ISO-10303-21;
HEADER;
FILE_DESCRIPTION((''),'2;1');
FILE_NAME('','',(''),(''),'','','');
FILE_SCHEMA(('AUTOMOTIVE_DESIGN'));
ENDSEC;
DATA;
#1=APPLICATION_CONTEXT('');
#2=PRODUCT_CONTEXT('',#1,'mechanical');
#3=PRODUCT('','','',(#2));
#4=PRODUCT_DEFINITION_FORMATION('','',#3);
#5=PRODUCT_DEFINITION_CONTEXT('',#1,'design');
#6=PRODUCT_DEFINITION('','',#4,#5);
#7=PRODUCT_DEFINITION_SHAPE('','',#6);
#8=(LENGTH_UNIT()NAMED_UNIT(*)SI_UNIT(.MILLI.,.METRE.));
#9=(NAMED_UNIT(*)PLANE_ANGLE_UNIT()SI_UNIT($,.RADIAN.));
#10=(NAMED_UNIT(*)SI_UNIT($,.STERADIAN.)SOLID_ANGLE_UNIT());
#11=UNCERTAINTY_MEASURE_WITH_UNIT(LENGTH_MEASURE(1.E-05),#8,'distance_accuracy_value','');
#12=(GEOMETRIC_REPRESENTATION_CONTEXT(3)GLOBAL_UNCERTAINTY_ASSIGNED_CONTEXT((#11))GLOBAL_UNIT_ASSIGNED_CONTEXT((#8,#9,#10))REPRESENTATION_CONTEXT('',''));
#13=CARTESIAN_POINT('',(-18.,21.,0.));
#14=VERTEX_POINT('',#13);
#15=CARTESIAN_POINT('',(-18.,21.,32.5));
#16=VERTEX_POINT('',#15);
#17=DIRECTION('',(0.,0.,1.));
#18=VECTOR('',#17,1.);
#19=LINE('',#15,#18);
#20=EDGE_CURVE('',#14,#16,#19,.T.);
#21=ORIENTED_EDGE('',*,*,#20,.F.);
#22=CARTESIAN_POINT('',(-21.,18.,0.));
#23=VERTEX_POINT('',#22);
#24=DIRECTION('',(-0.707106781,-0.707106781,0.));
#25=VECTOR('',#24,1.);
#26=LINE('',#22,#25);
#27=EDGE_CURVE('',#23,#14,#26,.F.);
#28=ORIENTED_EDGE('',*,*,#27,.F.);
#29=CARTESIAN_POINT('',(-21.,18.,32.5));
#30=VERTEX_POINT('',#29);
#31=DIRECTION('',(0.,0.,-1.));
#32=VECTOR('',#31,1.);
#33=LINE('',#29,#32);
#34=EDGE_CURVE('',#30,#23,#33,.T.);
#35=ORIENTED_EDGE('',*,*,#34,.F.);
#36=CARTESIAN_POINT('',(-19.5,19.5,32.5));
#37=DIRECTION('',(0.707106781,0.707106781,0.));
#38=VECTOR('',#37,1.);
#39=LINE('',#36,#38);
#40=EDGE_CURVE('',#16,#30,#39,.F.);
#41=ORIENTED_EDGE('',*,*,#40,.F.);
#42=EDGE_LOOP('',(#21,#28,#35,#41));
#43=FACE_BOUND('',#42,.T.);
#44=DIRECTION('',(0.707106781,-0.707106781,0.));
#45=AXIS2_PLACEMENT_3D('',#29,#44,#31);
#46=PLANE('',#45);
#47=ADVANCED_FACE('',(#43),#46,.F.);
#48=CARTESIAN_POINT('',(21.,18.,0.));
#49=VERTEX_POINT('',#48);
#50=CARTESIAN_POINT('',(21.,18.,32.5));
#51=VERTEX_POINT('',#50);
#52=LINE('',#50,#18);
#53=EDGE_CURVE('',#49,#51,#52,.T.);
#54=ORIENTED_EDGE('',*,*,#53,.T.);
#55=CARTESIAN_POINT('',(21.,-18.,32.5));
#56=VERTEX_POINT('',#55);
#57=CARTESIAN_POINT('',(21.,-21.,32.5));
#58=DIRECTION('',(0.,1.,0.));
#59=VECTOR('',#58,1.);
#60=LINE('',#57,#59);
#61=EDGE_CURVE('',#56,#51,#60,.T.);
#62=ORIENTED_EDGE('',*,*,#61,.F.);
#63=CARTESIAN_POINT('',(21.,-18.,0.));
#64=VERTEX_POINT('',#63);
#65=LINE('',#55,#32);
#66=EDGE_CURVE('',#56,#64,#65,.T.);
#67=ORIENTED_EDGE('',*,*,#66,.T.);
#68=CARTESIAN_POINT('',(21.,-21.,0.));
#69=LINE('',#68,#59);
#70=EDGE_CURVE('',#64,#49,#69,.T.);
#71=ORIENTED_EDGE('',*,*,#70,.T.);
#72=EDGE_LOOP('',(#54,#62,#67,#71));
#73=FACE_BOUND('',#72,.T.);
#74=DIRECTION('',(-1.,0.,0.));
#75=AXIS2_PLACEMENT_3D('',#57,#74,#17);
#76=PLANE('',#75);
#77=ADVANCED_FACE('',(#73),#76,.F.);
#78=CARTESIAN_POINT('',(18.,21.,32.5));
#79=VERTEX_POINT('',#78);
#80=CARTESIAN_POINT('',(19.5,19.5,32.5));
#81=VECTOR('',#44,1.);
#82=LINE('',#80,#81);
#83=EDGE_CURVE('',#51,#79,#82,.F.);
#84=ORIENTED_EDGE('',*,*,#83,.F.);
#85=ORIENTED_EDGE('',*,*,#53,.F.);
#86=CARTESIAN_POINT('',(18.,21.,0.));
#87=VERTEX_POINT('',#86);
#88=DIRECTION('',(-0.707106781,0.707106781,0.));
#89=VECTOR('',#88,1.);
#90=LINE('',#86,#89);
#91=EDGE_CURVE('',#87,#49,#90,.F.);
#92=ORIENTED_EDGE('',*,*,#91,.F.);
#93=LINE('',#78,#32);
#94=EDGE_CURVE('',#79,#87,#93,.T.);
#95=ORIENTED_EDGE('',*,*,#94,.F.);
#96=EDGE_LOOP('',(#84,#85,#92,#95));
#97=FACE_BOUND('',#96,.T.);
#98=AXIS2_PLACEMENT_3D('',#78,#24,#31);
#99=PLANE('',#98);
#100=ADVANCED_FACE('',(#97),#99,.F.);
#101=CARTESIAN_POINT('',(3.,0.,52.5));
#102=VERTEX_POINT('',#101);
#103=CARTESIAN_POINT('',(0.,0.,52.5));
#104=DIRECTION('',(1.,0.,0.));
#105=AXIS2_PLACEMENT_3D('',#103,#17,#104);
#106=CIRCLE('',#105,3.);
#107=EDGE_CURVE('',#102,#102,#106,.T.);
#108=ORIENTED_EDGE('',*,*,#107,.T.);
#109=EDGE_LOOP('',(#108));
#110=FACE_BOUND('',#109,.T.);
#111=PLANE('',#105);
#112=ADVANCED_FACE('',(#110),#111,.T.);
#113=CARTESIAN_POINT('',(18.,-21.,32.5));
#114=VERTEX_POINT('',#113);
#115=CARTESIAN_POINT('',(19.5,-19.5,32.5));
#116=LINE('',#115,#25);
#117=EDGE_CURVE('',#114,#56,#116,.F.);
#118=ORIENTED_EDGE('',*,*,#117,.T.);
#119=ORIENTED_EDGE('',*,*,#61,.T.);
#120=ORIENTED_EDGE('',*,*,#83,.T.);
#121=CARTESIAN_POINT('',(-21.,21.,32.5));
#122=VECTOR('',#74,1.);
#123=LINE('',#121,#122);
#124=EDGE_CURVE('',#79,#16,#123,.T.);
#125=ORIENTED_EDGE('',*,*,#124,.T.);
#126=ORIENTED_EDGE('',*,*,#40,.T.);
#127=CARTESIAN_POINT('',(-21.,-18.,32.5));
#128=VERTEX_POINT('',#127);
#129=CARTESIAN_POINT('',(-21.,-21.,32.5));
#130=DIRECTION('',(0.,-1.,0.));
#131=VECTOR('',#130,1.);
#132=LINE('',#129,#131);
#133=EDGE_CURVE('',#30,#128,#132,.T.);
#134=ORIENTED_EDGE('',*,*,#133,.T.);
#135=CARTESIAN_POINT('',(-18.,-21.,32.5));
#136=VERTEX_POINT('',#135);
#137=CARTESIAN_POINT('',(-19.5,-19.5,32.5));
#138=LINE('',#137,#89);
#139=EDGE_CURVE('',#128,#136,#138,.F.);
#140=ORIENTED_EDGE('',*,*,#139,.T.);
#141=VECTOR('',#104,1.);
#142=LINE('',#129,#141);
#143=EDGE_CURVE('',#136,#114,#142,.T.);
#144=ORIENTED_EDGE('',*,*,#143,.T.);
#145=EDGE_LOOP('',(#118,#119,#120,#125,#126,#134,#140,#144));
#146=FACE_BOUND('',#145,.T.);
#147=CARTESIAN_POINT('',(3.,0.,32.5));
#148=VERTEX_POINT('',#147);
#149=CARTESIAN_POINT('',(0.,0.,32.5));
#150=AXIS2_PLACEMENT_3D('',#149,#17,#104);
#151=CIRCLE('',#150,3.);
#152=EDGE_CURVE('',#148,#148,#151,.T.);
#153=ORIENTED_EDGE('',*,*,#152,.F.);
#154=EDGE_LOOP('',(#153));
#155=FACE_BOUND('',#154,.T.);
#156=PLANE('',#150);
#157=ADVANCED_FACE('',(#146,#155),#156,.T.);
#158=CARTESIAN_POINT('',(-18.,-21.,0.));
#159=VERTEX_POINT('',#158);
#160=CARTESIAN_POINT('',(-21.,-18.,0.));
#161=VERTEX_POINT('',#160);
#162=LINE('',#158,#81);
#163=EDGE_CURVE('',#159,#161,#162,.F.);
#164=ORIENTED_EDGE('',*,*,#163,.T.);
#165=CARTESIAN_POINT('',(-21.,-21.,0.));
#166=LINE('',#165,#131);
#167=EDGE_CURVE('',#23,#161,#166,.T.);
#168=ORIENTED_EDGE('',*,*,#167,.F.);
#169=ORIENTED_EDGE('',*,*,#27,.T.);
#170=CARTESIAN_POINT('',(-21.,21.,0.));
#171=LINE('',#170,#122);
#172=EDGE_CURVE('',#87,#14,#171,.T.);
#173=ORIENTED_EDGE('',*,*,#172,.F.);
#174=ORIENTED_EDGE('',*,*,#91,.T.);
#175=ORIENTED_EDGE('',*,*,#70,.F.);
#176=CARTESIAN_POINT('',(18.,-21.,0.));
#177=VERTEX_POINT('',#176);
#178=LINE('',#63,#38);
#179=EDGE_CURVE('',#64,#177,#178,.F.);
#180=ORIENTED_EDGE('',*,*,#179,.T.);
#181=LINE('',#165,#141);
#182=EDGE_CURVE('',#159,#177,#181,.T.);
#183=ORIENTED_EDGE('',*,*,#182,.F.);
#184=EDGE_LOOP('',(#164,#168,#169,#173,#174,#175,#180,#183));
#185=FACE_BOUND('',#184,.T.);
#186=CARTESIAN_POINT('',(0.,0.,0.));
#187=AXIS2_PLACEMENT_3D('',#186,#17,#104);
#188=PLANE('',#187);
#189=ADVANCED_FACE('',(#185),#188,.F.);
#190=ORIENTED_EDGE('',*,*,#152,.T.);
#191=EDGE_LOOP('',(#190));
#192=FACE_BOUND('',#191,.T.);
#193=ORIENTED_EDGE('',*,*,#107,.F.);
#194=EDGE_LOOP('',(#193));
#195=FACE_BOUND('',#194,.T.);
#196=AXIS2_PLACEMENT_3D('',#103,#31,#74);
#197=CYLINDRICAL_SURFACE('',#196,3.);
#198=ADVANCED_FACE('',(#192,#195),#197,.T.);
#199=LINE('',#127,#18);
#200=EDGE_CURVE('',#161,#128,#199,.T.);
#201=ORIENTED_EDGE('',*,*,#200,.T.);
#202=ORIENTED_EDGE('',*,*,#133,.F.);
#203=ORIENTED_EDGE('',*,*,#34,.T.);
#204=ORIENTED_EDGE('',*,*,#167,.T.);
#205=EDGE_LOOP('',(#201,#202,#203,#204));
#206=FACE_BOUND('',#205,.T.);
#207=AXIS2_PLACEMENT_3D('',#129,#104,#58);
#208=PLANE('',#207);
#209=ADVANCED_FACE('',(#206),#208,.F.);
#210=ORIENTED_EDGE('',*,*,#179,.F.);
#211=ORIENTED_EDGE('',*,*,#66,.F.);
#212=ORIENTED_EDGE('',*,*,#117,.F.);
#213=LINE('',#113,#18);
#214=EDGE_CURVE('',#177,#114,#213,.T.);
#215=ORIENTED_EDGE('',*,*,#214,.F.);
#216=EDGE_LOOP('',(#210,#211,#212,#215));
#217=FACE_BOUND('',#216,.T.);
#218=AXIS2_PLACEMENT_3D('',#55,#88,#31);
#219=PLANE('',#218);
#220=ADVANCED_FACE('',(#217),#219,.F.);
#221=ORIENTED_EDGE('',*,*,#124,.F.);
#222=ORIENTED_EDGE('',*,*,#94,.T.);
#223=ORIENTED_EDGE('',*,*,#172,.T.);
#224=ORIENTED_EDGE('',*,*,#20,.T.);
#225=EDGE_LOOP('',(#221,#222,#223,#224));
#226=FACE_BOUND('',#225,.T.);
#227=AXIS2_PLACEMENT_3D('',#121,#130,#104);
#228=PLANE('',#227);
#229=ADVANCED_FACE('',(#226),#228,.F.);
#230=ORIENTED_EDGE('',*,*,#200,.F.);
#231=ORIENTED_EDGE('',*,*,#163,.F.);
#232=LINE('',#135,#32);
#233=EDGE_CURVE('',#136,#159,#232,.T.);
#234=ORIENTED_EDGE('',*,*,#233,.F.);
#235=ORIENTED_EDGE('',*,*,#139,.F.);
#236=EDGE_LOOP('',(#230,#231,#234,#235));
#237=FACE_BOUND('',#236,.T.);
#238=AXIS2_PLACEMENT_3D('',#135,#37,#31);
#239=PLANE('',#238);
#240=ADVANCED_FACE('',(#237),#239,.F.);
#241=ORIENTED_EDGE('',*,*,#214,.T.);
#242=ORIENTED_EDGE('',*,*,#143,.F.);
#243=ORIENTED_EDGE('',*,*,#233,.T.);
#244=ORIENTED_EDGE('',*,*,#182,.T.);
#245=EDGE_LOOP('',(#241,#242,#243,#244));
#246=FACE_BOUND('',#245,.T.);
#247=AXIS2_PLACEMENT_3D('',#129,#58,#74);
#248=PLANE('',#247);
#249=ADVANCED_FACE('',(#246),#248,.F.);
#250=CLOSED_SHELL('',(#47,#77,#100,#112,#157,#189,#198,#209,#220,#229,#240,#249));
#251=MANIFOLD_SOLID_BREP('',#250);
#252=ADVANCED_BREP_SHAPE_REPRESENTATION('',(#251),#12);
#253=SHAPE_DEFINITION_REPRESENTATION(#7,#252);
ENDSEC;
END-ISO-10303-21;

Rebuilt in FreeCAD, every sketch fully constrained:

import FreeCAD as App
import Part
import Sketcher


def edges_at(feature, points):
    """Names of the edges that pass closest to the given points."""
    edges = feature.Shape.Edges
    near = lambda p: min(range(len(edges)), key=lambda i: edges[i].distToShape(Part.Vertex(*p))[0])
    return sorted({f"Edge{near(p) + 1}" for p in points})

doc = App.newDocument("Part")
body = doc.addObject("PartDesign::Body", "Body")

# Sketch on XY plane
sketch1 = doc.addObject("Sketcher::SketchObject", "Sketch")
body.addObject(sketch1)
sketch1.AttachmentSupport = (doc.XY_Plane, [""])
sketch1.MapMode = "FlatFace"
sketch1.addGeometry(Part.LineSegment(App.Vector(-21, -21, 0), App.Vector(21, -21, 0)), False)
sketch1.addGeometry(Part.LineSegment(App.Vector(21, -21, 0), App.Vector(21, 21, 0)), False)
sketch1.addGeometry(Part.LineSegment(App.Vector(21, 21, 0), App.Vector(-21, 21, 0)), False)
sketch1.addGeometry(Part.LineSegment(App.Vector(-21, 21, 0), App.Vector(-21, -21, 0)), False)
sketch1.addConstraint(Sketcher.Constraint("Coincident", 0, 2, 1, 1))
sketch1.addConstraint(Sketcher.Constraint("Coincident", 1, 2, 2, 1))
sketch1.addConstraint(Sketcher.Constraint("Coincident", 2, 2, 3, 1))
sketch1.addConstraint(Sketcher.Constraint("Coincident", 3, 2, 0, 1))
sketch1.addConstraint(Sketcher.Constraint("Horizontal", 0))
sketch1.addConstraint(Sketcher.Constraint("Vertical", 1))
sketch1.addConstraint(Sketcher.Constraint("Horizontal", 2))
sketch1.addConstraint(Sketcher.Constraint("Vertical", 3))
sketch1.addConstraint(Sketcher.Constraint("Symmetric", 0, 2, 2, 2, -1, 1))
sketch1.addConstraint(Sketcher.Constraint("Equal", 2, 1))
sketch1.addConstraint(Sketcher.Constraint("DistanceX", 0, 1, 0, 2, 42.0))
pad1 = doc.addObject("PartDesign::Pad", "Pad")
body.addObject(pad1)
pad1.Profile = sketch1
pad1.Length = 32.5
doc.recompute()

chamfer = doc.addObject("PartDesign::Chamfer", "Chamfer")
body.addObject(chamfer)
chamfer.Base = (pad1, edges_at(pad1, [
    (21, 21, 16.25),
    (21, -21, 16.25),
    (-21, -21, 16.25),
    (-21, 21, 16.25),
]))
chamfer.Size = 3

# Sketch on XY plane
sketch2 = doc.addObject("Sketcher::SketchObject", "Sketch001")
body.addObject(sketch2)
sketch2.AttachmentSupport = (doc.XY_Plane, [""])
sketch2.MapMode = "FlatFace"
sketch2.AttachmentOffset = App.Placement(App.Vector(0, 0, 32.5), App.Rotation())
sketch2.addGeometry(Part.Circle(App.Vector(0, 0, 0), App.Vector(0, 0, 1), 3), False)
sketch2.addConstraint(Sketcher.Constraint("Coincident", 0, 3, -1, 1))
sketch2.addConstraint(Sketcher.Constraint("Diameter", 0, 6.0))
pad2 = doc.addObject("PartDesign::Pad", "Pad001")
body.addObject(pad2)
pad2.Profile = sketch2
pad2.Length = 20

doc.recompute()
